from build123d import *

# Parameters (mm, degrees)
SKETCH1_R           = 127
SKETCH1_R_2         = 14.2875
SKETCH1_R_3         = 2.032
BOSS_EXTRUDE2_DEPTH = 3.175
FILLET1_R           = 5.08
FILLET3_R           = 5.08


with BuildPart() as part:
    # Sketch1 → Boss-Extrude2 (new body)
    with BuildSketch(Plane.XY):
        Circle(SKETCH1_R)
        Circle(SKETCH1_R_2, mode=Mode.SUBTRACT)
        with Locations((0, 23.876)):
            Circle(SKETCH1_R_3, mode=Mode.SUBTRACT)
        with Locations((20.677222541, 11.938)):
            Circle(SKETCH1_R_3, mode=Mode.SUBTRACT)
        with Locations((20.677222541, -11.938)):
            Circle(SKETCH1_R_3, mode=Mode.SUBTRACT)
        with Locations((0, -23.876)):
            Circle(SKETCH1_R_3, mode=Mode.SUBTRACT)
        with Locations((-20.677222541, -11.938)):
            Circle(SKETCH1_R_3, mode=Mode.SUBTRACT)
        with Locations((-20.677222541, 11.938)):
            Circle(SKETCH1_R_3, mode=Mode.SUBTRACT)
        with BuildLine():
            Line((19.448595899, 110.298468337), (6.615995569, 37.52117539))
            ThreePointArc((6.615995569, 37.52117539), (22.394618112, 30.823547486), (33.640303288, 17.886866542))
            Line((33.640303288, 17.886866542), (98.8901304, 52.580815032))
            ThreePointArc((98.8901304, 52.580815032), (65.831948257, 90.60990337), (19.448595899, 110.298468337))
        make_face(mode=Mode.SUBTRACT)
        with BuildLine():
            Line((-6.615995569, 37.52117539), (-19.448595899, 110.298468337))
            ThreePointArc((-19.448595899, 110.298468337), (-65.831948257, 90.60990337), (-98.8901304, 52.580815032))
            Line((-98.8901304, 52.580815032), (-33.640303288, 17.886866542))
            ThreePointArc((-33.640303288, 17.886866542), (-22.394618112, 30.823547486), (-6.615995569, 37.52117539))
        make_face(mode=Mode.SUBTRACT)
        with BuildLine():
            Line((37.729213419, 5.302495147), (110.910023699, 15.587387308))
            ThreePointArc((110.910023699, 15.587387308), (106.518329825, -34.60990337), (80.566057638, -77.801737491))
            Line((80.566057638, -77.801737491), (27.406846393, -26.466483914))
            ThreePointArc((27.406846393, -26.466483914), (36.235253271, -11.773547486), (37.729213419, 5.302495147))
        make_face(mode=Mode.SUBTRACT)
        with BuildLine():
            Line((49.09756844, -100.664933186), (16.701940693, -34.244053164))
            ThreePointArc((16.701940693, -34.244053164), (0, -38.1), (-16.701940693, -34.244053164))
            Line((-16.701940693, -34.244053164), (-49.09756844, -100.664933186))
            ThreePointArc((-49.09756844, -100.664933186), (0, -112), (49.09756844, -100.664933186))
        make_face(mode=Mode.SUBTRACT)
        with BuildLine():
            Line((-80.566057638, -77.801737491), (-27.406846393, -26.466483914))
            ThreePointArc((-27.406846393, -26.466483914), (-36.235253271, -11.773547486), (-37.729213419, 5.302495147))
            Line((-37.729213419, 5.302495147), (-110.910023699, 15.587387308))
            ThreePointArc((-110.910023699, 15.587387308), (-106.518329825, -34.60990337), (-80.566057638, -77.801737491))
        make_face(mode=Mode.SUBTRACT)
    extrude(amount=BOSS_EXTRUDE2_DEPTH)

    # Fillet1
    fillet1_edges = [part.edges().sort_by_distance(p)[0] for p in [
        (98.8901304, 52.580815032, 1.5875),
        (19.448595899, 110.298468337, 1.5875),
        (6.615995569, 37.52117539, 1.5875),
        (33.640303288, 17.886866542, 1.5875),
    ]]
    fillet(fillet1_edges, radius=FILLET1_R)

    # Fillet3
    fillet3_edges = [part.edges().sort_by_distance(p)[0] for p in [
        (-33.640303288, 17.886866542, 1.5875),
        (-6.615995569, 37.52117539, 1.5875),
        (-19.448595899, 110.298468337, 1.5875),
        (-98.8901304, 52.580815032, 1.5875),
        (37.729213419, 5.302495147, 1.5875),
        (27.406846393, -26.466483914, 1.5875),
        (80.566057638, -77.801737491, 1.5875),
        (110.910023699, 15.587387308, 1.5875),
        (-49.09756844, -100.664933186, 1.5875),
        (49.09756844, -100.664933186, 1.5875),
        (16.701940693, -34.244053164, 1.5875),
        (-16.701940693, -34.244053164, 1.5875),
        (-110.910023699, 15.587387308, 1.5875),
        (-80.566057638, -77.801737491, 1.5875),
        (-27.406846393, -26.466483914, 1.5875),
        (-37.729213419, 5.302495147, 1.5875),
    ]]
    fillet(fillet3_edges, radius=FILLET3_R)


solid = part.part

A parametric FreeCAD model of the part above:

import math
import FreeCAD as App
import Part
import Sketcher
Q = App.Units.Quantity


def edges_at(feature, points):
    """Names of the edges that pass closest to the given points."""
    edges = feature.Shape.Edges
    near = lambda p: min(range(len(edges)), key=lambda i: edges[i].distToShape(Part.Vertex(*p))[0])
    return sorted({f"Edge{near(p) + 1}" for p in points})

doc = App.newDocument("Part")
params = doc.addObject("Spreadsheet::Sheet", "Params")
for row, (alias, value) in enumerate([
    ("sketch1_diameter", "10 in"),
    ("sketch1_radius", "1.5 in"),
    ("sketch1_diameter2", "0.16 in"),
    ("sketch1_diameter3", "1.125 in"),
    ("pad1_length", "0.125 in"),
    ("fillet_radius", "0.2 in"),
    ("fillet2_radius", "0.2 in"),
], start=1):
    params.set(f"A{row}", alias)
    params.set(f"B{row}", "=" + value)
    params.setAlias(f"B{row}", alias)

body = doc.addObject("PartDesign::Body", "Body")

# Sketch on XY plane
sketch1 = doc.addObject("Sketcher::SketchObject", "Sketch")
body.addObject(sketch1)
sketch1.AttachmentSupport = (doc.XY_Plane, [""])
sketch1.MapMode = "FlatFace"
sketch1.addGeometry([
    Part.Circle(App.Vector(0, 0, 0), App.Vector(0, 0, 1), 127),  # 0
    Part.LineSegment(App.Vector(-27.4, -26.5, 0), App.Vector(-80.6, -77.8, 0)),  # 1
    Part.ArcOfCircle(Part.Circle(App.Vector(0, 0, 0), App.Vector(0, 0, 1), 112), math.radians(172), math.radians(224)),  # 2
    Part.LineSegment(App.Vector(-110.9, 15.6, 0), App.Vector(-37.7, 5.3, 0)),  # 3
    Part.ArcOfCircle(Part.Circle(App.Vector(0, 0, 0), App.Vector(0, 0, 1), 38.1), math.radians(172), math.radians(224)),  # 4
    Part.Circle(App.Vector(-20.7, -11.9, 0), App.Vector(0, 0, 1), 2),  # 5
    Part.LineSegment(App.Vector(16.7, -34.2, 0), App.Vector(49.1, -100.7, 0)),  # 6
    Part.ArcOfCircle(Part.Circle(App.Vector(0, 0, 0), App.Vector(0, 0, 1), 112), math.radians(-116), math.radians(-64)),  # 7
    Part.LineSegment(App.Vector(-49.1, -100.7, 0), App.Vector(-16.7, -34.2, 0)),  # 8
    Part.ArcOfCircle(Part.Circle(App.Vector(0, 0, 0), App.Vector(0, 0, 1), 38.1), math.radians(-116), math.radians(-64)),  # 9
    Part.Circle(App.Vector(0, -23.9, 0), App.Vector(0, 0, 1), 2),  # 10
    Part.Circle(App.Vector(20.7, -11.9, 0), App.Vector(0, 0, 1), 2),  # 11
    Part.ArcOfCircle(Part.Circle(App.Vector(0, 0, 0), App.Vector(0, 0, 1), 38.1), math.radians(-44), math.radians(8)),  # 12
    Part.LineSegment(App.Vector(37.7, 5.3, 0), App.Vector(110.9, 15.6, 0)),  # 13
    Part.ArcOfCircle(Part.Circle(App.Vector(0, 0, 0), App.Vector(0, 0, 1), 112), math.radians(-44), math.radians(8)),  # 14
    Part.LineSegment(App.Vector(80.6, -77.8, 0), App.Vector(27.4, -26.5, 0)),  # 15
    Part.Circle(App.Vector(-20.7, 11.9, 0), App.Vector(0, 0, 1), 2),  # 16
    Part.LineSegment(App.Vector(-19.4, 110.3, 0), App.Vector(-6.6, 37.5, 0)),  # 17
    Part.ArcOfCircle(Part.Circle(App.Vector(0, 0, 0), App.Vector(0, 0, 1), 38.1), math.radians(100), math.radians(152)),  # 18
    Part.LineSegment(App.Vector(-33.6, 17.9, 0), App.Vector(-98.9, 52.6, 0)),  # 19
    Part.ArcOfCircle(Part.Circle(App.Vector(0, 0, 0), App.Vector(0, 0, 1), 112), math.radians(100), math.radians(152)),  # 20
    Part.Circle(App.Vector(0, 0, 0), App.Vector(0, 0, 1), 14.3),  # 21
    Part.Circle(App.Vector(20.7, 11.9, 0), App.Vector(0, 0, 1), 2),  # 22
    Part.Circle(App.Vector(0, 23.9, 0), App.Vector(0, 0, 1), 2),  # 23
    Part.LineSegment(App.Vector(6.6, 37.5, 0), App.Vector(19.4, 110.3, 0)),  # 24
    Part.ArcOfCircle(Part.Circle(App.Vector(0, 0, 0), App.Vector(0, 0, 1), 112), math.radians(28), math.radians(80)),  # 25
    Part.LineSegment(App.Vector(98.9, 52.6, 0), App.Vector(33.6, 17.9, 0)),  # 26
    Part.ArcOfCircle(Part.Circle(App.Vector(0, 0, 0), App.Vector(0, 0, 1), 38.1), math.radians(28), math.radians(80)),  # 27
], False)
sketch1.addConstraint([
    Sketcher.Constraint("Coincident", 1, 2, 2, 2),
    Sketcher.Constraint("Coincident", 2, 1, 3, 1),
    Sketcher.Constraint("Coincident", 3, 2, 4, 1),
    Sketcher.Constraint("Coincident", 4, 2, 1, 1),
    Sketcher.Constraint("Coincident", 6, 2, 7, 2),
    Sketcher.Constraint("Coincident", 7, 1, 8, 1),
    Sketcher.Constraint("Coincident", 8, 2, 9, 1),
    Sketcher.Constraint("Coincident", 9, 2, 6, 1),
    Sketcher.Constraint("Coincident", 12, 2, 13, 1),
    Sketcher.Constraint("Coincident", 13, 2, 14, 2),
    Sketcher.Constraint("Coincident", 14, 1, 15, 1),
    Sketcher.Constraint("Coincident", 15, 2, 12, 1),
    Sketcher.Constraint("Coincident", 17, 2, 18, 1),
    Sketcher.Constraint("Coincident", 18, 2, 19, 1),
    Sketcher.Constraint("Coincident", 19, 2, 20, 2),
    Sketcher.Constraint("Coincident", 20, 1, 17, 1),
    Sketcher.Constraint("Coincident", 24, 2, 25, 2),
    Sketcher.Constraint("Coincident", 25, 1, 26, 1),
    Sketcher.Constraint("Coincident", 26, 2, 27, 1),
    Sketcher.Constraint("Coincident", 27, 2, 24, 1),
    Sketcher.Constraint("Coincident", 0, 3, -1, 1),
    Sketcher.Constraint("Coincident", 2, 3, -1, 1),
    Sketcher.Constraint("Coincident", 4, 3, -1, 1),
    Sketcher.Constraint("Coincident", 7, 3, -1, 1),
    Sketcher.Constraint("Coincident", 9, 3, -1, 1),
    Sketcher.Constraint("Coincident", 12, 3, -1, 1),
    Sketcher.Constraint("Coincident", 14, 3, -1, 1),
    Sketcher.Constraint("Coincident", 18, 3, -1, 1),
    Sketcher.Constraint("Coincident", 20, 3, -1, 1),
    Sketcher.Constraint("Coincident", 21, 3, -1, 1),
    Sketcher.Constraint("Coincident", 25, 3, -1, 1),
    Sketcher.Constraint("Coincident", 27, 3, -1, 1),
    Sketcher.Constraint("Equal", 2, 7),
    Sketcher.Constraint("Equal", 4, 9),
    Sketcher.Constraint("Equal", 5, 10),
    Sketcher.Constraint("Equal", 10, 11),
    Sketcher.Constraint("Equal", 9, 12),
    Sketcher.Constraint("Equal", 7, 14),
    Sketcher.Constraint("Equal", 11, 16),
    Sketcher.Constraint("Equal", 12, 18),
    Sketcher.Constraint("Equal", 14, 20),
    Sketcher.Constraint("Equal", 16, 22),
    Sketcher.Constraint("Equal", 22, 23),
    Sketcher.Constraint("Equal", 20, 25),
    Sketcher.Constraint("Equal", 18, 27),
    Sketcher.Constraint("Symmetric", 11, 3, 16, 3, -1, 1),
    Sketcher.Constraint("Symmetric", 5, 3, 22, 3, -1, 1),
    Sketcher.Constraint("Symmetric", 10, 3, 23, 3, -1, 1),
    Sketcher.Constraint("Symmetric", 5, 3, 11, 3, -2),
    Sketcher.Constraint("PointOnObject", 10, 3, -2),
    Sketcher.Constraint("Horizontal", 6, 2, 7, 1),
    Sketcher.Constraint("Horizontal", 8, 2, 9, 2),
    Sketcher.Constraint("Horizontal", 3, 2, 12, 2),
    Sketcher.Constraint("Horizontal", 2, 1, 13, 2),
    Sketcher.Constraint("Horizontal", 1, 2, 14, 1),
    Sketcher.Constraint("Horizontal", 4, 2, 15, 2),
    Sketcher.Constraint("Horizontal", 20, 1, 24, 2),
    Sketcher.Constraint("Horizontal", 19, 2, 25, 1),
    Sketcher.Constraint("Horizontal", 18, 2, 26, 2),
    Sketcher.Constraint("Horizontal", 17, 2, 27, 2),
    Sketcher.Constraint("Diameter", 0, Q("10 in")),
    Sketcher.Constraint("Radius", 4, Q("1.5 in")),
    Sketcher.Constraint("Diameter", 5, Q("0.16 in")),
    Sketcher.Constraint("Diameter", 21, Q("1.125 in")),
    Sketcher.Constraint("Angle", 1, Q("-136 deg")),
    Sketcher.Constraint("Angle", 3, Q("-8 deg")),
    Sketcher.Constraint("Angle", 6, Q("-64 deg")),
    Sketcher.Constraint("Angle", 17, Q("-80 deg")),
    Sketcher.Constraint("Angle", 19, Q("152 deg")),
    Sketcher.Constraint("DistanceY", 5, 3, -1, 1, Q("0.47 in")),
    Sketcher.Constraint("DistanceY", 10, 3, -1, 1, Q("0.94 in")),
    Sketcher.Constraint("Radius", 2, Q("112 mm")),
    Sketcher.Constraint("DistanceX", 2, 1, 16, 3, Q("90.232801 mm")),
    Sketcher.Constraint("DistanceY", 18, 2, 20, 1, Q("92.411602 mm")),
    Sketcher.Constraint("DistanceX", -1, 1, 6, 2, Q("49.097568 mm")),
    Sketcher.Constraint("DistanceX", 19, 2, -1, 1, Q("98.89013 mm")),
    Sketcher.Constraint("DistanceY", 4, 2, 3, 2, Q("31.768979 mm")),
    Sketcher.Constraint("DistanceY", 6, 2, 4, 2, Q("74.198449 mm")),
])
sketch1.setExpression("Constraints[60]", "Params.sketch1_diameter")
sketch1.setExpression("Constraints[61]", "Params.sketch1_radius")
sketch1.setExpression("Constraints[62]", "Params.sketch1_diameter2")
sketch1.setExpression("Constraints[63]", "Params.sketch1_diameter3")
pad1 = doc.addObject("PartDesign::Pad", "Pad")
body.addObject(pad1)
pad1.Profile = sketch1
pad1.setExpression("Length", "Params.pad1_length")
doc.recompute()

fillet = doc.addObject("PartDesign::Fillet", "Fillet")
body.addObject(fillet)
fillet.Base = (pad1, edges_at(pad1, [
    (98.89, 52.581, 1.587),
    (19.449, 110.298, 1.587),
    (6.616, 37.521, 1.587),
    (33.64, 17.887, 1.587),
]))
fillet.setExpression("Radius", "Params.fillet_radius")
doc.recompute()

fillet2 = doc.addObject("PartDesign::Fillet", "Fillet001")
body.addObject(fillet2)
fillet2.Base = (fillet, edges_at(fillet, [
    (-33.64, 17.887, 1.587),
    (-6.616, 37.521, 1.587),
    (-19.449, 110.298, 1.587),
    (-98.89, 52.581, 1.587),
    (37.729, 5.302, 1.587),
    (27.407, -26.466, 1.587),
    (80.566, -77.802, 1.587),
    (110.91, 15.587, 1.587),
    (-49.098, -100.665, 1.587),
    (49.098, -100.665, 1.587),
    (16.702, -34.244, 1.587),
    (-16.702, -34.244, 1.587),
    (-110.91, 15.587, 1.587),
    (-80.566, -77.802, 1.587),
    (-27.407, -26.466, 1.587),
    (-37.729, 5.302, 1.587),
]))
fillet2.setExpression("Radius", "Params.fillet2_radius")

doc.recompute()
